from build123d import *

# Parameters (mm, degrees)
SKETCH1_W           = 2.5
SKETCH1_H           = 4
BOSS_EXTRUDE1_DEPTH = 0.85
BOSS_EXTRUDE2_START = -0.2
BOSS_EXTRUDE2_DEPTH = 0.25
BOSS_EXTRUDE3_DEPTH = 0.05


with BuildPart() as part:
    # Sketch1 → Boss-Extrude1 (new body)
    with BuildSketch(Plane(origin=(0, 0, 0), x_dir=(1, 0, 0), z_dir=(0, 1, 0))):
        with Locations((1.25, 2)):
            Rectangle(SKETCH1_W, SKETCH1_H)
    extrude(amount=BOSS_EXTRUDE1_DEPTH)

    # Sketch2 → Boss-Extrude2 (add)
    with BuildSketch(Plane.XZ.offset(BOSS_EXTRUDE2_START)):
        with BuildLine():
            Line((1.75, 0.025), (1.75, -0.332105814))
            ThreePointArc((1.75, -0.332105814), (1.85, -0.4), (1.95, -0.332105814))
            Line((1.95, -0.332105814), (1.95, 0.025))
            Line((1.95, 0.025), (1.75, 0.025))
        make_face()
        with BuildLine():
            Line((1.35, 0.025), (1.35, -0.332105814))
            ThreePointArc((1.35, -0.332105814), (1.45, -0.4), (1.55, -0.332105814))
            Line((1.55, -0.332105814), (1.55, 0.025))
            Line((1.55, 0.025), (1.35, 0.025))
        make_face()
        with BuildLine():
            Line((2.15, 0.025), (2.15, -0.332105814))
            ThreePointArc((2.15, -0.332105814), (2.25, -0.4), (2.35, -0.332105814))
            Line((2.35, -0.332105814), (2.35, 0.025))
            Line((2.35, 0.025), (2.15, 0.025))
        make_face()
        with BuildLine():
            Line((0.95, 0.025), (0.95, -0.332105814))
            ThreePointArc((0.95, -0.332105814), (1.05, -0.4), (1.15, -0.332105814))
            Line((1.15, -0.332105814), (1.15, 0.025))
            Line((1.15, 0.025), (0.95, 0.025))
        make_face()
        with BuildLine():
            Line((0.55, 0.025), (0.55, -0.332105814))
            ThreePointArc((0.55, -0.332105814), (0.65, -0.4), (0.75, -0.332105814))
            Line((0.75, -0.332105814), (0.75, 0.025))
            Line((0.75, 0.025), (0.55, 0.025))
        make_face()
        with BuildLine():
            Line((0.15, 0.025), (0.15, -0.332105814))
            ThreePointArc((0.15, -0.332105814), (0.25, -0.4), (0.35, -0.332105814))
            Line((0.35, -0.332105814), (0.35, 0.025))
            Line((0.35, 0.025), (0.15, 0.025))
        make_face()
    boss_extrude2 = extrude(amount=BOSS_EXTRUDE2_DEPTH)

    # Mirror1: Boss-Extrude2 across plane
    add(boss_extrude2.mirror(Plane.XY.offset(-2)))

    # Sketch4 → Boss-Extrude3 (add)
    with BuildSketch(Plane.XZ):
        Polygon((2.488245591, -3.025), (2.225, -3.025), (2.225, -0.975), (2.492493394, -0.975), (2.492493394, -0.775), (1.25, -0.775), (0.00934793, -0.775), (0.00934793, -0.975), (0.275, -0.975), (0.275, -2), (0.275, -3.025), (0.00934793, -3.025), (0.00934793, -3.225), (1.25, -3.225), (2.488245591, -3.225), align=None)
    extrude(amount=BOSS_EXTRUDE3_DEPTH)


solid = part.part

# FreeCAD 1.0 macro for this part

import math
import FreeCAD as App
import Part
import Sketcher

V = App.Vector

doc = App.newDocument("Part")
params = doc.addObject("Spreadsheet::Sheet", "Params")
for row, (alias, value) in enumerate([
    ("sketch1_height", "4 mm"),
    ("sketch1_width", "2.5 mm"),
    ("pad1_length", "0.85 mm"),
    ("sketch2_width", "0.2 mm"),
    ("pad2_length", "0.25 mm"),
    ("sketch3_height", "0.2 mm"),
    ("sketch3_height2", "2.05 mm"),
    ("pad3_length", "0.05 mm"),
], start=1):
    params.set(f"A{row}", alias)
    params.set(f"B{row}", "=" + value)
    params.setAlias(f"B{row}", alias)

body = doc.addObject("PartDesign::Body", "Body")

sketch1 = body.newObject("Sketcher::SketchObject", "Sketch")
sketch1.AttachmentSupport = (doc.getObject("XZ_Plane"), [""])
sketch1.MapMode = "FlatFace"
sketch1.addGeometry(Part.LineSegment(V(0, -4, 0), V(0, 0, 0)), False)
sketch1.addGeometry(Part.LineSegment(V(0, 0, 0), V(2.5, 0, 0)), False)
sketch1.addGeometry(Part.LineSegment(V(2.5, 0, 0), V(2.5, -4, 0)), False)
sketch1.addGeometry(Part.LineSegment(V(2.5, -4, 0), V(0, -4, 0)), False)
sketch1.addConstraint(Sketcher.Constraint("Coincident", 0, 2, 1, 1))
sketch1.addConstraint(Sketcher.Constraint("Coincident", 1, 2, 2, 1))
sketch1.addConstraint(Sketcher.Constraint("Coincident", 2, 2, 3, 1))
sketch1.addConstraint(Sketcher.Constraint("Coincident", 3, 2, 0, 1))
sketch1.addConstraint(Sketcher.Constraint("Vertical", 0))
sketch1.addConstraint(Sketcher.Constraint("Horizontal", 1))
sketch1.addConstraint(Sketcher.Constraint("Vertical", 2))
sketch1.addConstraint(Sketcher.Constraint("Horizontal", 3))
sketch1.addConstraint(Sketcher.Constraint("Coincident", 0, 2, -1, 1))
sketch1.addConstraint(Sketcher.Constraint("DistanceY", 0, 1, 0, 2, 4.0))
sketch1.addConstraint(Sketcher.Constraint("DistanceX", 1, 1, 1, 2, 2.5))
sketch1.setExpression("Constraints[9]", "Params.sketch1_height")
sketch1.setExpression("Constraints[10]", "Params.sketch1_width")
pad1 = body.newObject("PartDesign::Pad", "Pad")
pad1.Profile = sketch1
pad1.setExpression("Length", "Params.pad1_length")
pad1.Reversed = True

sketch2 = body.newObject("Sketcher::SketchObject", "Sketch001")
sketch2.AttachmentSupport = (doc.getObject("XZ_Plane"), [""])
sketch2.MapMode = "FlatFace"
sketch2.AttachmentOffset = App.Placement(V(0, 0, -0.2), App.Rotation())
sketch2.addGeometry(Part.LineSegment(V(1.75, 0.03, 0), V(1.75, -0.33, 0)), False)
sketch2.addGeometry(Part.ArcOfCircle(Part.Circle(V(1.85, -0.29, 0), V(0, 0, 1), 0.11), math.radians(-158), math.radians(-22)), False)
sketch2.addGeometry(Part.LineSegment(V(1.95, -0.33, 0), V(1.95, 0.03, 0)), False)
sketch2.addGeometry(Part.LineSegment(V(1.95, 0.03, 0), V(1.75, 0.03, 0)), False)
sketch2.addGeometry(Part.LineSegment(V(1.35, 0.03, 0), V(1.35, -0.33, 0)), False)
sketch2.addGeometry(Part.ArcOfCircle(Part.Circle(V(1.45, -0.29, 0), V(0, 0, 1), 0.11), math.radians(-158), math.radians(-22)), False)
sketch2.addGeometry(Part.LineSegment(V(1.55, -0.33, 0), V(1.55, 0.03, 0)), False)
sketch2.addGeometry(Part.LineSegment(V(1.55, 0.03, 0), V(1.35, 0.03, 0)), False)
sketch2.addGeometry(Part.LineSegment(V(2.15, 0.03, 0), V(2.15, -0.33, 0)), False)
sketch2.addGeometry(Part.ArcOfCircle(Part.Circle(V(2.25, -0.29, 0), V(0, 0, 1), 0.11), math.radians(-158), math.radians(-22)), False)
sketch2.addGeometry(Part.LineSegment(V(2.35, -0.33, 0), V(2.35, 0.03, 0)), False)
sketch2.addGeometry(Part.LineSegment(V(2.35, 0.03, 0), V(2.15, 0.03, 0)), False)
sketch2.addGeometry(Part.LineSegment(V(0.95, 0.03, 0), V(0.95, -0.33, 0)), False)
sketch2.addGeometry(Part.ArcOfCircle(Part.Circle(V(1.05, -0.29, 0), V(0, 0, 1), 0.11), math.radians(-158), math.radians(-22)), False)
sketch2.addGeometry(Part.LineSegment(V(1.15, -0.33, 0), V(1.15, 0.03, 0)), False)
sketch2.addGeometry(Part.LineSegment(V(1.15, 0.03, 0), V(0.95, 0.03, 0)), False)
sketch2.addGeometry(Part.LineSegment(V(0.55, 0.03, 0), V(0.55, -0.33, 0)), False)
sketch2.addGeometry(Part.ArcOfCircle(Part.Circle(V(0.65, -0.29, 0), V(0, 0, 1), 0.11), math.radians(-158), math.radians(-22)), False)
sketch2.addGeometry(Part.LineSegment(V(0.75, -0.33, 0), V(0.75, 0.03, 0)), False)
sketch2.addGeometry(Part.LineSegment(V(0.75, 0.03, 0), V(0.55, 0.03, 0)), False)
sketch2.addGeometry(Part.LineSegment(V(0.15, 0.03, 0), V(0.15, -0.33, 0)), False)
sketch2.addGeometry(Part.ArcOfCircle(Part.Circle(V(0.25, -0.29, 0), V(0, 0, 1), 0.11), math.radians(-158), math.radians(-22)), False)
sketch2.addGeometry(Part.LineSegment(V(0.35, -0.33, 0), V(0.35, 0.03, 0)), False)
sketch2.addGeometry(Part.LineSegment(V(0.35, 0.03, 0), V(0.15, 0.03, 0)), False)
sketch2.addConstraint(Sketcher.Constraint("Coincident", 0, 2, 1, 1))
sketch2.addConstraint(Sketcher.Constraint("Coincident", 1, 2, 2, 1))
sketch2.addConstraint(Sketcher.Constraint("Coincident", 2, 2, 3, 1))
sketch2.addConstraint(Sketcher.Constraint("Coincident", 3, 2, 0, 1))
sketch2.addConstraint(Sketcher.Constraint("Coincident", 4, 2, 5, 1))
sketch2.addConstraint(Sketcher.Constraint("Coincident", 5, 2, 6, 1))
sketch2.addConstraint(Sketcher.Constraint("Coincident", 6, 2, 7, 1))
sketch2.addConstraint(Sketcher.Constraint("Coincident", 7, 2, 4, 1))
sketch2.addConstraint(Sketcher.Constraint("Coincident", 8, 2, 9, 1))
sketch2.addConstraint(Sketcher.Constraint("Coincident", 9, 2, 10, 1))
sketch2.addConstraint(Sketcher.Constraint("Coincident", 10, 2, 11, 1))
sketch2.addConstraint(Sketcher.Constraint("Coincident", 11, 2, 8, 1))
sketch2.addConstraint(Sketcher.Constraint("Coincident", 12, 2, 13, 1))
sketch2.addConstraint(Sketcher.Constraint("Coincident", 13, 2, 14, 1))
sketch2.addConstraint(Sketcher.Constraint("Coincident", 14, 2, 15, 1))
sketch2.addConstraint(Sketcher.Constraint("Coincident", 15, 2, 12, 1))
sketch2.addConstraint(Sketcher.Constraint("Coincident", 16, 2, 17, 1))
sketch2.addConstraint(Sketcher.Constraint("Coincident", 17, 2, 18, 1))
sketch2.addConstraint(Sketcher.Constraint("Coincident", 18, 2, 19, 1))
sketch2.addConstraint(Sketcher.Constraint("Coincident", 19, 2, 16, 1))
sketch2.addConstraint(Sketcher.Constraint("Coincident", 20, 2, 21, 1))
sketch2.addConstraint(Sketcher.Constraint("Coincident", 21, 2, 22, 1))
sketch2.addConstraint(Sketcher.Constraint("Coincident", 22, 2, 23, 1))
sketch2.addConstraint(Sketcher.Constraint("Coincident", 23, 2, 20, 1))
sketch2.addConstraint(Sketcher.Constraint("Vertical", 0))
sketch2.addConstraint(Sketcher.Constraint("Vertical", 2))
sketch2.addConstraint(Sketcher.Constraint("Horizontal", 3))
sketch2.addConstraint(Sketcher.Constraint("Vertical", 4))
sketch2.addConstraint(Sketcher.Constraint("Vertical", 6))
sketch2.addConstraint(Sketcher.Constraint("Horizontal", 7))
sketch2.addConstraint(Sketcher.Constraint("Vertical", 8))
sketch2.addConstraint(Sketcher.Constraint("Vertical", 10))
sketch2.addConstraint(Sketcher.Constraint("Horizontal", 11))
sketch2.addConstraint(Sketcher.Constraint("Vertical", 12))
sketch2.addConstraint(Sketcher.Constraint("Vertical", 14))
sketch2.addConstraint(Sketcher.Constraint("Horizontal", 15))
sketch2.addConstraint(Sketcher.Constraint("Vertical", 16))
sketch2.addConstraint(Sketcher.Constraint("Vertical", 18))
sketch2.addConstraint(Sketcher.Constraint("Horizontal", 19))
sketch2.addConstraint(Sketcher.Constraint("Vertical", 20))
sketch2.addConstraint(Sketcher.Constraint("Vertical", 22))
sketch2.addConstraint(Sketcher.Constraint("Horizontal", 23))
sketch2.addConstraint(Sketcher.Constraint("Equal", 1, 5))
sketch2.addConstraint(Sketcher.Constraint("Equal", 5, 9))
sketch2.addConstraint(Sketcher.Constraint("Equal", 9, 13))
sketch2.addConstraint(Sketcher.Constraint("Equal", 13, 17))
sketch2.addConstraint(Sketcher.Constraint("Equal", 17, 21))
sketch2.addConstraint(Sketcher.Constraint("Horizontal", 1, 3, 5, 3))
sketch2.addConstraint(Sketcher.Constraint("Horizontal", 5, 3, 9, 3))
sketch2.addConstraint(Sketcher.Constraint("Horizontal", 9, 3, 13, 3))
sketch2.addConstraint(Sketcher.Constraint("Horizontal", 13, 3, 17, 3))
sketch2.addConstraint(Sketcher.Constraint("Horizontal", 17, 3, 21, 3))
sketch2.addConstraint(Sketcher.Constraint("Horizontal", 0, 2, 1, 2))
sketch2.addConstraint(Sketcher.Constraint("Horizontal", 1, 2, 4, 2))
sketch2.addConstraint(Sketcher.Constraint("Horizontal", 4, 2, 5, 2))
sketch2.addConstraint(Sketcher.Constraint("Horizontal", 3, 2, 6, 2))
sketch2.addConstraint(Sketcher.Constraint("Horizontal", 5, 2, 8, 2))
sketch2.addConstraint(Sketcher.Constraint("Horizontal", 8, 2, 9, 2))
sketch2.addConstraint(Sketcher.Constraint("Horizontal", 7, 2, 10, 2))
sketch2.addConstraint(Sketcher.Constraint("Horizontal", 9, 2, 12, 2))
sketch2.addConstraint(Sketcher.Constraint("Horizontal", 12, 2, 13, 2))
sketch2.addConstraint(Sketcher.Constraint("Horizontal", 11, 2, 14, 2))
sketch2.addConstraint(Sketcher.Constraint("Horizontal", 13, 2, 16, 2))
sketch2.addConstraint(Sketcher.Constraint("Horizontal", 16, 2, 17, 2))
sketch2.addConstraint(Sketcher.Constraint("Horizontal", 15, 2, 18, 2))
sketch2.addConstraint(Sketcher.Constraint("Horizontal", 17, 2, 20, 2))
sketch2.addConstraint(Sketcher.Constraint("Horizontal", 20, 2, 21, 2))
sketch2.addConstraint(Sketcher.Constraint("Horizontal", 19, 2, 22, 2))
sketch2.addConstraint(Sketcher.Constraint("DistanceX", 3, 2, 3, 1, 0.2))
sketch2.addConstraint(Sketcher.Constraint("DistanceX", 21, 3, 9, 3, 2.0))
sketch2.addConstraint(Sketcher.Constraint("DistanceX", 5, 3, 1, 3, 0.4))
sketch2.addConstraint(Sketcher.Constraint("DistanceX", 1, 3, 9, 3, 0.4))
sketch2.addConstraint(Sketcher.Constraint("DistanceX", 13, 3, 5, 3, 0.4))
sketch2.addConstraint(Sketcher.Constraint("DistanceX", 17, 3, 13, 3, 0.4))
sketch2.addConstraint(Sketcher.Constraint("DistanceX", -1, 1, 1, 3, 1.85))
sketch2.addConstraint(Sketcher.Constraint("Radius", 1, 0.107591))
sketch2.addConstraint(Sketcher.Constraint("DistanceY", -1, 1, 2, 2, 0.025))
sketch2.addConstraint(Sketcher.Constraint("DistanceY", 0, 2, 0, 1, 0.357106))
sketch2.setExpression("Constraints[68]", "Params.sketch2_width")
pad2 = body.newObject("PartDesign::Pad", "Pad001")
pad2.Profile = sketch2
pad2.setExpression("Length", "Params.pad2_length")
doc.recompute()

datumplane = body.newObject("PartDesign::Plane", "DatumPlane")
datumplane.AttachmentSupport = (doc.getObject("XY_Plane"), [""])
datumplane.MapMode = "FlatFace"
datumplane.AttachmentOffset = App.Placement(V(0, 0, -2), App.Rotation())
mirrored = body.newObject("PartDesign::Mirrored", "Mirrored")
mirrored.Originals = [pad2]
mirrored.MirrorPlane = (datumplane, [""])
body.Tip = mirrored

sketch3 = body.newObject("Sketcher::SketchObject", "Sketch002")
sketch3.AttachmentSupport = (doc.getObject("XZ_Plane"), [""])
sketch3.MapMode = "FlatFace"
sketch3.addGeometry(Part.LineSegment(V(2.49, -3.02, 0), V(2.23, -3.02, 0)), False)
sketch3.addGeometry(Part.LineSegment(V(2.23, -3.02, 0), V(2.23, -0.97, 0)), False)
sketch3.addGeometry(Part.LineSegment(V(2.23, -0.97, 0), V(2.49, -0.97, 0)), False)
sketch3.addGeometry(Part.LineSegment(V(2.49, -0.97, 0), V(2.49, -0.78, 0)), False)
sketch3.addGeometry(Part.LineSegment(V(2.49, -0.78, 0), V(0.01, -0.78, 0)), False)
sketch3.addGeometry(Part.LineSegment(V(0.01, -0.78, 0), V(0.01, -0.97, 0)), False)
sketch3.addGeometry(Part.LineSegment(V(0.01, -0.97, 0), V(0.28, -0.97, 0)), False)
sketch3.addGeometry(Part.LineSegment(V(0.28, -0.97, 0), V(0.28, -3.02, 0)), False)
sketch3.addGeometry(Part.LineSegment(V(0.28, -3.02, 0), V(0.01, -3.02, 0)), False)
sketch3.addGeometry(Part.LineSegment(V(0.01, -3.02, 0), V(0.01, -3.23, 0)), False)
sketch3.addGeometry(Part.LineSegment(V(0.01, -3.23, 0), V(2.49, -3.23, 0)), False)
sketch3.addGeometry(Part.LineSegment(V(2.49, -3.23, 0), V(2.49, -3.02, 0)), False)
sketch3.addConstraint(Sketcher.Constraint("Coincident", 0, 2, 1, 1))
sketch3.addConstraint(Sketcher.Constraint("Coincident", 1, 2, 2, 1))
sketch3.addConstraint(Sketcher.Constraint("Coincident", 2, 2, 3, 1))
sketch3.addConstraint(Sketcher.Constraint("Coincident", 3, 2, 4, 1))
sketch3.addConstraint(Sketcher.Constraint("Coincident", 4, 2, 5, 1))
sketch3.addConstraint(Sketcher.Constraint("Coincident", 5, 2, 6, 1))
sketch3.addConstraint(Sketcher.Constraint("Coincident", 6, 2, 7, 1))
sketch3.addConstraint(Sketcher.Constraint("Coincident", 7, 2, 8, 1))
sketch3.addConstraint(Sketcher.Constraint("Coincident", 8, 2, 9, 1))
sketch3.addConstraint(Sketcher.Constraint("Coincident", 9, 2, 10, 1))
sketch3.addConstraint(Sketcher.Constraint("Coincident", 10, 2, 11, 1))
sketch3.addConstraint(Sketcher.Constraint("Coincident", 11, 2, 0, 1))
sketch3.addConstraint(Sketcher.Constraint("Horizontal", 0))
sketch3.addConstraint(Sketcher.Constraint("Vertical", 1))
sketch3.addConstraint(Sketcher.Constraint("Horizontal", 2))
sketch3.addConstraint(Sketcher.Constraint("Vertical", 3))
sketch3.addConstraint(Sketcher.Constraint("Horizontal", 4))
sketch3.addConstraint(Sketcher.Constraint("Vertical", 5))
sketch3.addConstraint(Sketcher.Constraint("Horizontal", 6))
sketch3.addConstraint(Sketcher.Constraint("Vertical", 7))
sketch3.addConstraint(Sketcher.Constraint("Horizontal", 8))
sketch3.addConstraint(Sketcher.Constraint("Vertical", 9))
sketch3.addConstraint(Sketcher.Constraint("Horizontal", 10))
sketch3.addConstraint(Sketcher.Constraint("Vertical", 11))
sketch3.addConstraint(Sketcher.Constraint("Horizontal", 2, 2, 5, 2))
sketch3.addConstraint(Sketcher.Constraint("Horizontal", 0, 2, 7, 2))
sketch3.addConstraint(Sketcher.Constraint("Vertical", 5, 2, 8, 2))
sketch3.addConstraint(Sketcher.Constraint("Equal", 5, 9))
sketch3.addConstraint(Sketcher.Constraint("DistanceY", 3, 1, 3, 2, 0.2))
sketch3.addConstraint(Sketcher.Constraint("DistanceY", 1, 1, 1, 2, 2.05))
sketch3.addConstraint(Sketcher.Constraint("DistanceX", 6, 2, 1, 2, 1.95))
sketch3.addConstraint(Sketcher.Constraint("DistanceX", -1, 1, 0, 2, 2.225))
sketch3.addConstraint(Sketcher.Constraint("DistanceY", 0, 2, -1, 1, 3.025))
sketch3.addConstraint(Sketcher.Constraint("DistanceX", 0, 2, 0, 1, 0.263246))
sketch3.addConstraint(Sketcher.Constraint("DistanceX", 2, 1, 2, 2, 0.267493))
sketch3.addConstraint(Sketcher.Constraint("DistanceX", 4, 2, 4, 1, 2.483145))
sketch3.setExpression("Constraints[28]", "Params.sketch3_height")
sketch3.setExpression("Constraints[29]", "Params.sketch3_height2")
pad3 = body.newObject("PartDesign::Pad", "Pad002")
pad3.Profile = sketch3
pad3.setExpression("Length", "Params.pad3_length")

doc.recompute()
